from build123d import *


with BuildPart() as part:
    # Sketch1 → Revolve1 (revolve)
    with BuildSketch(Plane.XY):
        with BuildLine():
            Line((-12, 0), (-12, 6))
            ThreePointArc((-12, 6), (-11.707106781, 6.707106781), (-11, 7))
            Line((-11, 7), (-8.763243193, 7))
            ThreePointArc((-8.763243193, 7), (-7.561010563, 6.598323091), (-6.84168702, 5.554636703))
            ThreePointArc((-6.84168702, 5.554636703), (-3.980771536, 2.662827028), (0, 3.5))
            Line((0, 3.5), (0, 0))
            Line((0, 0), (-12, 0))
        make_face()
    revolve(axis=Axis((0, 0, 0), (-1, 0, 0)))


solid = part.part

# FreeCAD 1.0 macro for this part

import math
import FreeCAD as App
import Part
import Sketcher

doc = App.newDocument("Part")
params = doc.addObject("Spreadsheet::Sheet", "Params")
for row, (alias, value) in enumerate([
    ("sketch1_radius", "2 mm"),
    ("sketch1_radius2", "1 mm"),
    ("sketch1_width", "12 mm"),
    ("sketch1_height", "6 mm"),
    ("sketch1_radius3", "4.25 mm"),
    ("revolution_angle", "360 deg"),
], start=1):
    params.set(f"A{row}", alias)
    params.set(f"B{row}", "=" + value)
    params.setAlias(f"B{row}", alias)

body = doc.addObject("PartDesign::Body", "Body")

# Sketch on XY plane
sketch1 = body.newObject("Sketcher::SketchObject", "Sketch")
sketch1.AttachmentSupport = (doc.getObject("XY_Plane"), [""])
sketch1.MapMode = "FlatFace"
sketch1.addGeometry([
    Part.LineSegment(App.Vector(-12, 6, 0), App.Vector(-12, 0, 0)),  # 0
    Part.LineSegment(App.Vector(-12, 0, 0), App.Vector(0, 0, 0)),  # 1
    Part.LineSegment(App.Vector(0, 0, 0), App.Vector(0, 3.5, 0)),  # 2
    Part.ArcOfCircle(Part.Circle(App.Vector(-2.8, 6.7, 0), App.Vector(0, 0, 1), 4.3), math.radians(-164), math.radians(-50)),  # 3
    Part.ArcOfCircle(Part.Circle(App.Vector(-8.8, 5, 0), App.Vector(0, 0, 1), 2), math.radians(16), math.radians(90)),  # 4
    Part.LineSegment(App.Vector(-8.8, 7, 0), App.Vector(-11, 7, 0)),  # 5
    Part.ArcOfCircle(Part.Circle(App.Vector(-11, 6, 0), App.Vector(0, 0, 1), 1), math.radians(90), math.radians(180)),  # 6
], False)
sketch1.addConstraint([
    Sketcher.Constraint("Coincident", 0, 2, 1, 1),
    Sketcher.Constraint("Coincident", 1, 2, 2, 1),
    Sketcher.Constraint("Coincident", 2, 2, 3, 2),
    Sketcher.Constraint("Tangent", 3, 1, 4, 1),
    Sketcher.Constraint("Tangent", 4, 2, 5, 1),
    Sketcher.Constraint("Tangent", 5, 2, 6, 1),
    Sketcher.Constraint("Tangent", 6, 2, 0, 1),
    Sketcher.Constraint("Vertical", 0),
    Sketcher.Constraint("Horizontal", 1),
    Sketcher.Constraint("Vertical", 2),
    Sketcher.Constraint("Horizontal", 5),
    Sketcher.Constraint("Coincident", 1, 2, -1, 1),
    Sketcher.Constraint("Radius", 4, 2.0),
    Sketcher.Constraint("Radius", 6, 1.0),
    Sketcher.Constraint("DistanceX", 1, 1, 1, 2, 12.0),
    Sketcher.Constraint("DistanceY", 0, 2, 0, 1, 6.0),
    Sketcher.Constraint("Radius", 3, 4.25),
    Sketcher.Constraint("DistanceY", 2, 1, 2, 2, 3.5),
    Sketcher.Constraint("DistanceX", 5, 2, 5, 1, 2.236757),
])
sketch1.setExpression("Constraints[12]", "Params.sketch1_radius")
sketch1.setExpression("Constraints[13]", "Params.sketch1_radius2")
sketch1.setExpression("Constraints[14]", "Params.sketch1_width")
sketch1.setExpression("Constraints[15]", "Params.sketch1_height")
sketch1.setExpression("Constraints[16]", "Params.sketch1_radius3")
revolution = body.newObject("PartDesign::Revolution", "Revolution")
revolution.Profile = sketch1
revolution.ReferenceAxis = (sketch1, ["H_Axis"])
revolution.setExpression("Angle", "Params.revolution_angle")

doc.recompute()
